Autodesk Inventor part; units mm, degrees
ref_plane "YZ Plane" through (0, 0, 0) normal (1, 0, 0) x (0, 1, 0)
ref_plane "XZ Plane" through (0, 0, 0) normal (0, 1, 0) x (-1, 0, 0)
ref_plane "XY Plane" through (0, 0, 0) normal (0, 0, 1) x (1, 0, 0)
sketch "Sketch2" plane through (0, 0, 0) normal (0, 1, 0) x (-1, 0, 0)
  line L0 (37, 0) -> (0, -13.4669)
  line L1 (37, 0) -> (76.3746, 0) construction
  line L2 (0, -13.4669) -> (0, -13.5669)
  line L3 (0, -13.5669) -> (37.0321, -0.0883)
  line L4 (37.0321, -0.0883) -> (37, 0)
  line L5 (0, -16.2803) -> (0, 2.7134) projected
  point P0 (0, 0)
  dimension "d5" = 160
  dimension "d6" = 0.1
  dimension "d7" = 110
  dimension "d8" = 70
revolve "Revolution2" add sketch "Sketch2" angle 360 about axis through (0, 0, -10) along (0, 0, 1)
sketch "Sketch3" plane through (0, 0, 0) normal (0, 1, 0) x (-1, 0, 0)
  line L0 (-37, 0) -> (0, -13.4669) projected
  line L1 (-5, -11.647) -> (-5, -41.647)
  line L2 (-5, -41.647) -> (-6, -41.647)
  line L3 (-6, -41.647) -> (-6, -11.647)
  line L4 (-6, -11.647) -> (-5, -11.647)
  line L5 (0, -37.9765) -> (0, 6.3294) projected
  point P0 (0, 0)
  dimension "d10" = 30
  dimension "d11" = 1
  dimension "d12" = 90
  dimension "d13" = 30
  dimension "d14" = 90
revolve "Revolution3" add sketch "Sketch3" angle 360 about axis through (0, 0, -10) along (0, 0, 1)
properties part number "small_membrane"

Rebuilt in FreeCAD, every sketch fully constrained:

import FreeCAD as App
import Part
import Sketcher

V = App.Vector
Q = App.Units.Quantity


def add_polygon(sketch, points):
    """Adds a closed chain of lines whose ends are joined by coincident constraints."""
    first, n = sketch.GeometryCount, len(points)
    for a, b in zip(points, points[1:] + points[:1]):
        sketch.addGeometry(Part.LineSegment(App.Vector(*a, 0), App.Vector(*b, 0)), False)
    for i in range(n):
        sketch.addConstraint(Sketcher.Constraint("Coincident", first + i, 2, first + (i + 1) % n, 1))

doc = App.newDocument("Part")
body = doc.addObject("PartDesign::Body", "Body")

# Sketch on XZ plane
sketch1 = body.newObject("Sketcher::SketchObject", "Sketch")
sketch1.AttachmentSupport = (doc.getObject("XZ_Plane"), [""])
sketch1.MapMode = "FlatFace"
add_polygon(sketch1, [(-37.03, -0.09), (-37, 0), (0, -13.47), (0, -13.57)])  # lines 0-3
sketch1.addConstraint([
    Sketcher.Constraint("Vertical", 2),
    Sketcher.Constraint("PointOnObject", 0, 2, -1),
    Sketcher.Constraint("PointOnObject", 1, 2, -2),
    Sketcher.Constraint("Perpendicular", 0, 1),
    Sketcher.Constraint("Parallel", 1, 3),
    Sketcher.Constraint("Angle", 3, Q("160 deg")),
    Sketcher.Constraint("DistanceY", 2, 2, 2, 1, 0.1),
    Sketcher.Constraint("DistanceX", 0, 2, -1, 1, 37.0),
])
revolution = body.newObject("PartDesign::Revolution", "Revolution")
revolution.Profile = sketch1
revolution.ReferenceAxis = (sketch1, ["V_Axis"])
revolution.Angle = 360

# Sketch on XZ plane
sketch2 = body.newObject("Sketcher::SketchObject", "Sketch001")
sketch2.AttachmentSupport = (doc.getObject("XZ_Plane"), [""])
sketch2.MapMode = "FlatFace"
add_polygon(sketch2, [(5, -41.6), (5, -11.6), (6, -11.6), (6, -41.6)])  # lines 0-3
sketch2.addConstraint([
    Sketcher.Constraint("Vertical", 0),
    Sketcher.Constraint("Horizontal", 1),
    Sketcher.Constraint("Vertical", 2),
    Sketcher.Constraint("Horizontal", 3),
    Sketcher.Constraint("DistanceX", 1, 1, 1, 2, 1.0),
    Sketcher.Constraint("DistanceY", 0, 1, 0, 2, 30.0),
    Sketcher.Constraint("DistanceX", -1, 1, 0, 2, 5.0),
    Sketcher.Constraint("DistanceY", 0, 2, -1, 1, 11.647),
])
revolution2 = body.newObject("PartDesign::Revolution", "Revolution001")
revolution2.Profile = sketch2
revolution2.ReferenceAxis = (sketch2, ["V_Axis"])
revolution2.Angle = 360

doc.recompute()
